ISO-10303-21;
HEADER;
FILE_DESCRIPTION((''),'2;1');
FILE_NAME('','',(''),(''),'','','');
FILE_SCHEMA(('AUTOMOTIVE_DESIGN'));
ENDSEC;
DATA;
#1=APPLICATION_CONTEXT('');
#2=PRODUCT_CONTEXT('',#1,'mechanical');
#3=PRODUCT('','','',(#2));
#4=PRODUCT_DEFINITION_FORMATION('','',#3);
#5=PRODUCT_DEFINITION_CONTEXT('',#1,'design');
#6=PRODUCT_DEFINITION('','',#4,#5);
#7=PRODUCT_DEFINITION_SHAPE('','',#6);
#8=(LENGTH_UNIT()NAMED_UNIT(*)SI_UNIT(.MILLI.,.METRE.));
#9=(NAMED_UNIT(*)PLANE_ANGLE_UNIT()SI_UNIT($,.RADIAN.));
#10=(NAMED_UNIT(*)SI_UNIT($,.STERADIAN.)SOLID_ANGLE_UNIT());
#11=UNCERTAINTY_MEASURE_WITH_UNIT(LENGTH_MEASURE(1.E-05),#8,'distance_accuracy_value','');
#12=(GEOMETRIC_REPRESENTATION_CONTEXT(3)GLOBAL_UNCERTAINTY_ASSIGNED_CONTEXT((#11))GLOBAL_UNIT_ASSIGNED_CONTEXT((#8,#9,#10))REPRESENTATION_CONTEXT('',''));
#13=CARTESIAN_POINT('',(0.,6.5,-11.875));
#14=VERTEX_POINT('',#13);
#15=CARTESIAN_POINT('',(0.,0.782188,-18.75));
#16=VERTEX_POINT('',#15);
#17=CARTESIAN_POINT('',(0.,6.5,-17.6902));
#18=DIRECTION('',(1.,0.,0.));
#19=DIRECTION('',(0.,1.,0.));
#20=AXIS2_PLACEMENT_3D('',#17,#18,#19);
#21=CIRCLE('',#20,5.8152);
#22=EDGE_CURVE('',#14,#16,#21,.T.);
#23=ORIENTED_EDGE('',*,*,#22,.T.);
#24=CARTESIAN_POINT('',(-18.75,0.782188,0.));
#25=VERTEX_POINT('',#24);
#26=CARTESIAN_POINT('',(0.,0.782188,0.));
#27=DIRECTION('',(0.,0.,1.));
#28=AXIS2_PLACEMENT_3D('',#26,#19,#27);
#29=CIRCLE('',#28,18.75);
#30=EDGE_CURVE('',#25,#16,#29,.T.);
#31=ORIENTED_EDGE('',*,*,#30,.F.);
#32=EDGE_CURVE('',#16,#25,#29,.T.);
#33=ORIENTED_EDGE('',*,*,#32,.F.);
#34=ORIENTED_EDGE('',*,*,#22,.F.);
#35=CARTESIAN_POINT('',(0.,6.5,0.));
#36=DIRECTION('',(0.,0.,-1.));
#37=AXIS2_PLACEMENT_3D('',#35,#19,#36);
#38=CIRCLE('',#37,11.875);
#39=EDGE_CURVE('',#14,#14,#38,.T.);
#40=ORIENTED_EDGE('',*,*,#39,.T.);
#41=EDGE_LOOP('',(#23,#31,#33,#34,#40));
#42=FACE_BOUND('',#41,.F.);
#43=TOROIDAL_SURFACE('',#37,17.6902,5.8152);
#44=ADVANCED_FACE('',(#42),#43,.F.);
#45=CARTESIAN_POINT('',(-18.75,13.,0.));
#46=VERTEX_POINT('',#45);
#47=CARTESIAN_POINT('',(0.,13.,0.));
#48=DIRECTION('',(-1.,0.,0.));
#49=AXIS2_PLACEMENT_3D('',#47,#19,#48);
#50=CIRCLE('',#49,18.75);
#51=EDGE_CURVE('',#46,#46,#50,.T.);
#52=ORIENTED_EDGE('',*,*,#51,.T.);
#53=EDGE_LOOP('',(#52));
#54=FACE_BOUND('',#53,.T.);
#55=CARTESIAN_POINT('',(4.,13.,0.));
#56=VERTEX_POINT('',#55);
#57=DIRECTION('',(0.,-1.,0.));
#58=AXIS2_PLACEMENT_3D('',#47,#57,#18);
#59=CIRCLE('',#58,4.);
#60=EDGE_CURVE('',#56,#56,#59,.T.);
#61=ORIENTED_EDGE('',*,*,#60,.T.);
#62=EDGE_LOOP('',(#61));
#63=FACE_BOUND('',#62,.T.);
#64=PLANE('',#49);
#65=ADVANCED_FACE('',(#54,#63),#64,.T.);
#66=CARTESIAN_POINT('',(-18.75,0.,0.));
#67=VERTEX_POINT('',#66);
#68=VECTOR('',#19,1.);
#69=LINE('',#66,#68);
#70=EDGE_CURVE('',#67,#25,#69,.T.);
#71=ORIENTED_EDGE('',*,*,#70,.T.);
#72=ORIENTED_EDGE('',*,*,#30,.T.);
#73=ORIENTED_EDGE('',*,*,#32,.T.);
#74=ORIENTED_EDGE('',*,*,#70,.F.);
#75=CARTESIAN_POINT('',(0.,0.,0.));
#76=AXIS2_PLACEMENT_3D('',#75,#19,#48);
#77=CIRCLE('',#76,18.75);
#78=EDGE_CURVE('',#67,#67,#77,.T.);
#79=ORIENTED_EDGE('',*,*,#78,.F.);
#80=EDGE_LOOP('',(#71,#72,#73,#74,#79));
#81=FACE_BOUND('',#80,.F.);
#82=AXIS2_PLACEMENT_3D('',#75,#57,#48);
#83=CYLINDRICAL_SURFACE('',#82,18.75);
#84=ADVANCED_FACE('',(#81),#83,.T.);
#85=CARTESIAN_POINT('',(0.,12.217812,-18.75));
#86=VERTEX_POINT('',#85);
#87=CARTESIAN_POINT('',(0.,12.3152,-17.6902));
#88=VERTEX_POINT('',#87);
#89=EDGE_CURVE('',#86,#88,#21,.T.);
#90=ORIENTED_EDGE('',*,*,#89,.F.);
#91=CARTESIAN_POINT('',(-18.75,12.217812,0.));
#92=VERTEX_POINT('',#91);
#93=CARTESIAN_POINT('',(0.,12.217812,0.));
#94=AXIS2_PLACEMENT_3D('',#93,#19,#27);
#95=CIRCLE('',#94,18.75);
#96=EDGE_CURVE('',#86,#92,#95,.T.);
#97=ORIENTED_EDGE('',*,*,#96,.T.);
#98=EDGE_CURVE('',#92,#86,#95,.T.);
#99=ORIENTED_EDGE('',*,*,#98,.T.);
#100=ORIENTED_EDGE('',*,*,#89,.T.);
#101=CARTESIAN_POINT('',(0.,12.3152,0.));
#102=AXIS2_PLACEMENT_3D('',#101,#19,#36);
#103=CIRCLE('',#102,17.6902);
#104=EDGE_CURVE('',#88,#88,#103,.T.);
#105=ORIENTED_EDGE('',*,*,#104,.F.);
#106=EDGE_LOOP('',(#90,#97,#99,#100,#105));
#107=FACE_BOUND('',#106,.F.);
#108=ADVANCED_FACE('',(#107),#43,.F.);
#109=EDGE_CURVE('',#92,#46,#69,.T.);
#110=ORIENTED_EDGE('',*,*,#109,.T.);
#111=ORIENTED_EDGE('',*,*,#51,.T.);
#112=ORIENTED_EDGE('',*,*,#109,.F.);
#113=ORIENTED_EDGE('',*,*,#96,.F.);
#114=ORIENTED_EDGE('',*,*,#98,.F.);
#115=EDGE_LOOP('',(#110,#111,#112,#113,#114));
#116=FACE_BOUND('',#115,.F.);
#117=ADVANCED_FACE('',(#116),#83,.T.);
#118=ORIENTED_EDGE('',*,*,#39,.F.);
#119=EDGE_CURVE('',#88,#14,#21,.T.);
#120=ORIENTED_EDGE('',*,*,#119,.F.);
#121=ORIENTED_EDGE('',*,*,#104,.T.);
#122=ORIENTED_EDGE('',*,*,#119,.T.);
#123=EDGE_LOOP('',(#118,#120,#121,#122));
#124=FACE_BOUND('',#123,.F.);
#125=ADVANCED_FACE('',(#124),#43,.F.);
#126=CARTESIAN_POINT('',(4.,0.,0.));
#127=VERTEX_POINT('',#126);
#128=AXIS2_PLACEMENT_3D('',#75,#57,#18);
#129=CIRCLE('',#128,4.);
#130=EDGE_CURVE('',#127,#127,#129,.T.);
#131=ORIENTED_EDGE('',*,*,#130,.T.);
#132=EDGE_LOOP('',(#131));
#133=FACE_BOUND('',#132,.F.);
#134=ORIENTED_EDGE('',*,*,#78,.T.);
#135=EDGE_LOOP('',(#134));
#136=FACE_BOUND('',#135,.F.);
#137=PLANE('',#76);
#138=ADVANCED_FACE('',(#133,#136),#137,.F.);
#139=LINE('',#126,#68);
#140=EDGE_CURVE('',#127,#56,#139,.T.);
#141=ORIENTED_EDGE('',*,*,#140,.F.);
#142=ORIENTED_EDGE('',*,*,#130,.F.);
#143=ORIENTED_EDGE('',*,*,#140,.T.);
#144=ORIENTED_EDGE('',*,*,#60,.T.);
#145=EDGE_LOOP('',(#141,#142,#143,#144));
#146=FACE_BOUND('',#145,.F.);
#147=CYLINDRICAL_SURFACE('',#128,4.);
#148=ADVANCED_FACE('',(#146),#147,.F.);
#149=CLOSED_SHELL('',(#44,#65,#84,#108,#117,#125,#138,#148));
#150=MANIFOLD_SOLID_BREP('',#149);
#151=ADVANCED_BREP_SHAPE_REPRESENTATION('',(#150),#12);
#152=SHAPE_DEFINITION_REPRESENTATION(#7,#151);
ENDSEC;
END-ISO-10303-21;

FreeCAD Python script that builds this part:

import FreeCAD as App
import Part
import Sketcher

V = App.Vector
Q = App.Units.Quantity

doc = App.newDocument("Part")
params = doc.addObject("Spreadsheet::Sheet", "Params")
for row, (alias, value) in enumerate([
    ("sketch1_diameter", "37.5 mm"),
    ("pad1_length", "13 mm"),
    ("groove_angle", "360 deg"),
    ("sketch3_diameter", "8 mm"),
], start=1):
    params.set(f"A{row}", alias)
    params.set(f"B{row}", "=" + value)
    params.setAlias(f"B{row}", alias)

body = doc.addObject("PartDesign::Body", "Body")

sketch1 = body.newObject("Sketcher::SketchObject", "Sketch")
sketch1.AttachmentSupport = (doc.getObject("XZ_Plane"), [""])
sketch1.MapMode = "FlatFace"
sketch1.addGeometry(Part.Circle(V(0, 0, 0), V(0, 0, 1), 19), False)
sketch1.addConstraint([
    Sketcher.Constraint("Coincident", 0, 3, -1, 1),
    Sketcher.Constraint("Diameter", 0, Q("37.5 mm")),
])
sketch1.setExpression("Constraints[1]", "Params.sketch1_diameter")
pad1 = body.newObject("PartDesign::Pad", "Pad")
pad1.Profile = sketch1
pad1.setExpression("Length", "Params.pad1_length")
pad1.Reversed = True

sketch2 = body.newObject("Sketcher::SketchObject", "Sketch001")
sketch2.AttachmentSupport = (doc.getObject("YZ_Plane"), [""])
sketch2.MapMode = "FlatFace"
sketch2.addGeometry(Part.Circle(V(6, -18, 0), V(0, 0, 1), 6), False)
sketch2.addConstraint([
    Sketcher.Constraint("DistanceX", -1, 1, 0, 3, Q("6.5 mm")),
    Sketcher.Constraint("Diameter", 0, Q("11.6304 mm")),
    Sketcher.Constraint("DistanceY", 0, 3, -1, 1, Q("17.6902 mm")),
])
groove = body.newObject("PartDesign::Groove", "Groove")
groove.Profile = sketch2
groove.ReferenceAxis = (sketch2, ["H_Axis"])
groove.setExpression("Angle", "Params.groove_angle")

sketch3 = body.newObject("Sketcher::SketchObject", "Sketch002")
sketch3.AttachmentSupport = (doc.getObject("XZ_Plane"), [""])
sketch3.MapMode = "FlatFace"
sketch3.addGeometry(Part.Circle(V(0, 0, 0), V(0, 0, 1), 4), False)
sketch3.addConstraint([
    Sketcher.Constraint("Coincident", 0, 3, -1, 1),
    Sketcher.Constraint("Diameter", 0, Q("8 mm")),
])
sketch3.setExpression("Constraints[1]", "Params.sketch3_diameter")
pocket1 = body.newObject("PartDesign::Pocket", "Pocket")
pocket1.Profile = sketch3
pocket1.Type = "ThroughAll"

doc.recompute()
